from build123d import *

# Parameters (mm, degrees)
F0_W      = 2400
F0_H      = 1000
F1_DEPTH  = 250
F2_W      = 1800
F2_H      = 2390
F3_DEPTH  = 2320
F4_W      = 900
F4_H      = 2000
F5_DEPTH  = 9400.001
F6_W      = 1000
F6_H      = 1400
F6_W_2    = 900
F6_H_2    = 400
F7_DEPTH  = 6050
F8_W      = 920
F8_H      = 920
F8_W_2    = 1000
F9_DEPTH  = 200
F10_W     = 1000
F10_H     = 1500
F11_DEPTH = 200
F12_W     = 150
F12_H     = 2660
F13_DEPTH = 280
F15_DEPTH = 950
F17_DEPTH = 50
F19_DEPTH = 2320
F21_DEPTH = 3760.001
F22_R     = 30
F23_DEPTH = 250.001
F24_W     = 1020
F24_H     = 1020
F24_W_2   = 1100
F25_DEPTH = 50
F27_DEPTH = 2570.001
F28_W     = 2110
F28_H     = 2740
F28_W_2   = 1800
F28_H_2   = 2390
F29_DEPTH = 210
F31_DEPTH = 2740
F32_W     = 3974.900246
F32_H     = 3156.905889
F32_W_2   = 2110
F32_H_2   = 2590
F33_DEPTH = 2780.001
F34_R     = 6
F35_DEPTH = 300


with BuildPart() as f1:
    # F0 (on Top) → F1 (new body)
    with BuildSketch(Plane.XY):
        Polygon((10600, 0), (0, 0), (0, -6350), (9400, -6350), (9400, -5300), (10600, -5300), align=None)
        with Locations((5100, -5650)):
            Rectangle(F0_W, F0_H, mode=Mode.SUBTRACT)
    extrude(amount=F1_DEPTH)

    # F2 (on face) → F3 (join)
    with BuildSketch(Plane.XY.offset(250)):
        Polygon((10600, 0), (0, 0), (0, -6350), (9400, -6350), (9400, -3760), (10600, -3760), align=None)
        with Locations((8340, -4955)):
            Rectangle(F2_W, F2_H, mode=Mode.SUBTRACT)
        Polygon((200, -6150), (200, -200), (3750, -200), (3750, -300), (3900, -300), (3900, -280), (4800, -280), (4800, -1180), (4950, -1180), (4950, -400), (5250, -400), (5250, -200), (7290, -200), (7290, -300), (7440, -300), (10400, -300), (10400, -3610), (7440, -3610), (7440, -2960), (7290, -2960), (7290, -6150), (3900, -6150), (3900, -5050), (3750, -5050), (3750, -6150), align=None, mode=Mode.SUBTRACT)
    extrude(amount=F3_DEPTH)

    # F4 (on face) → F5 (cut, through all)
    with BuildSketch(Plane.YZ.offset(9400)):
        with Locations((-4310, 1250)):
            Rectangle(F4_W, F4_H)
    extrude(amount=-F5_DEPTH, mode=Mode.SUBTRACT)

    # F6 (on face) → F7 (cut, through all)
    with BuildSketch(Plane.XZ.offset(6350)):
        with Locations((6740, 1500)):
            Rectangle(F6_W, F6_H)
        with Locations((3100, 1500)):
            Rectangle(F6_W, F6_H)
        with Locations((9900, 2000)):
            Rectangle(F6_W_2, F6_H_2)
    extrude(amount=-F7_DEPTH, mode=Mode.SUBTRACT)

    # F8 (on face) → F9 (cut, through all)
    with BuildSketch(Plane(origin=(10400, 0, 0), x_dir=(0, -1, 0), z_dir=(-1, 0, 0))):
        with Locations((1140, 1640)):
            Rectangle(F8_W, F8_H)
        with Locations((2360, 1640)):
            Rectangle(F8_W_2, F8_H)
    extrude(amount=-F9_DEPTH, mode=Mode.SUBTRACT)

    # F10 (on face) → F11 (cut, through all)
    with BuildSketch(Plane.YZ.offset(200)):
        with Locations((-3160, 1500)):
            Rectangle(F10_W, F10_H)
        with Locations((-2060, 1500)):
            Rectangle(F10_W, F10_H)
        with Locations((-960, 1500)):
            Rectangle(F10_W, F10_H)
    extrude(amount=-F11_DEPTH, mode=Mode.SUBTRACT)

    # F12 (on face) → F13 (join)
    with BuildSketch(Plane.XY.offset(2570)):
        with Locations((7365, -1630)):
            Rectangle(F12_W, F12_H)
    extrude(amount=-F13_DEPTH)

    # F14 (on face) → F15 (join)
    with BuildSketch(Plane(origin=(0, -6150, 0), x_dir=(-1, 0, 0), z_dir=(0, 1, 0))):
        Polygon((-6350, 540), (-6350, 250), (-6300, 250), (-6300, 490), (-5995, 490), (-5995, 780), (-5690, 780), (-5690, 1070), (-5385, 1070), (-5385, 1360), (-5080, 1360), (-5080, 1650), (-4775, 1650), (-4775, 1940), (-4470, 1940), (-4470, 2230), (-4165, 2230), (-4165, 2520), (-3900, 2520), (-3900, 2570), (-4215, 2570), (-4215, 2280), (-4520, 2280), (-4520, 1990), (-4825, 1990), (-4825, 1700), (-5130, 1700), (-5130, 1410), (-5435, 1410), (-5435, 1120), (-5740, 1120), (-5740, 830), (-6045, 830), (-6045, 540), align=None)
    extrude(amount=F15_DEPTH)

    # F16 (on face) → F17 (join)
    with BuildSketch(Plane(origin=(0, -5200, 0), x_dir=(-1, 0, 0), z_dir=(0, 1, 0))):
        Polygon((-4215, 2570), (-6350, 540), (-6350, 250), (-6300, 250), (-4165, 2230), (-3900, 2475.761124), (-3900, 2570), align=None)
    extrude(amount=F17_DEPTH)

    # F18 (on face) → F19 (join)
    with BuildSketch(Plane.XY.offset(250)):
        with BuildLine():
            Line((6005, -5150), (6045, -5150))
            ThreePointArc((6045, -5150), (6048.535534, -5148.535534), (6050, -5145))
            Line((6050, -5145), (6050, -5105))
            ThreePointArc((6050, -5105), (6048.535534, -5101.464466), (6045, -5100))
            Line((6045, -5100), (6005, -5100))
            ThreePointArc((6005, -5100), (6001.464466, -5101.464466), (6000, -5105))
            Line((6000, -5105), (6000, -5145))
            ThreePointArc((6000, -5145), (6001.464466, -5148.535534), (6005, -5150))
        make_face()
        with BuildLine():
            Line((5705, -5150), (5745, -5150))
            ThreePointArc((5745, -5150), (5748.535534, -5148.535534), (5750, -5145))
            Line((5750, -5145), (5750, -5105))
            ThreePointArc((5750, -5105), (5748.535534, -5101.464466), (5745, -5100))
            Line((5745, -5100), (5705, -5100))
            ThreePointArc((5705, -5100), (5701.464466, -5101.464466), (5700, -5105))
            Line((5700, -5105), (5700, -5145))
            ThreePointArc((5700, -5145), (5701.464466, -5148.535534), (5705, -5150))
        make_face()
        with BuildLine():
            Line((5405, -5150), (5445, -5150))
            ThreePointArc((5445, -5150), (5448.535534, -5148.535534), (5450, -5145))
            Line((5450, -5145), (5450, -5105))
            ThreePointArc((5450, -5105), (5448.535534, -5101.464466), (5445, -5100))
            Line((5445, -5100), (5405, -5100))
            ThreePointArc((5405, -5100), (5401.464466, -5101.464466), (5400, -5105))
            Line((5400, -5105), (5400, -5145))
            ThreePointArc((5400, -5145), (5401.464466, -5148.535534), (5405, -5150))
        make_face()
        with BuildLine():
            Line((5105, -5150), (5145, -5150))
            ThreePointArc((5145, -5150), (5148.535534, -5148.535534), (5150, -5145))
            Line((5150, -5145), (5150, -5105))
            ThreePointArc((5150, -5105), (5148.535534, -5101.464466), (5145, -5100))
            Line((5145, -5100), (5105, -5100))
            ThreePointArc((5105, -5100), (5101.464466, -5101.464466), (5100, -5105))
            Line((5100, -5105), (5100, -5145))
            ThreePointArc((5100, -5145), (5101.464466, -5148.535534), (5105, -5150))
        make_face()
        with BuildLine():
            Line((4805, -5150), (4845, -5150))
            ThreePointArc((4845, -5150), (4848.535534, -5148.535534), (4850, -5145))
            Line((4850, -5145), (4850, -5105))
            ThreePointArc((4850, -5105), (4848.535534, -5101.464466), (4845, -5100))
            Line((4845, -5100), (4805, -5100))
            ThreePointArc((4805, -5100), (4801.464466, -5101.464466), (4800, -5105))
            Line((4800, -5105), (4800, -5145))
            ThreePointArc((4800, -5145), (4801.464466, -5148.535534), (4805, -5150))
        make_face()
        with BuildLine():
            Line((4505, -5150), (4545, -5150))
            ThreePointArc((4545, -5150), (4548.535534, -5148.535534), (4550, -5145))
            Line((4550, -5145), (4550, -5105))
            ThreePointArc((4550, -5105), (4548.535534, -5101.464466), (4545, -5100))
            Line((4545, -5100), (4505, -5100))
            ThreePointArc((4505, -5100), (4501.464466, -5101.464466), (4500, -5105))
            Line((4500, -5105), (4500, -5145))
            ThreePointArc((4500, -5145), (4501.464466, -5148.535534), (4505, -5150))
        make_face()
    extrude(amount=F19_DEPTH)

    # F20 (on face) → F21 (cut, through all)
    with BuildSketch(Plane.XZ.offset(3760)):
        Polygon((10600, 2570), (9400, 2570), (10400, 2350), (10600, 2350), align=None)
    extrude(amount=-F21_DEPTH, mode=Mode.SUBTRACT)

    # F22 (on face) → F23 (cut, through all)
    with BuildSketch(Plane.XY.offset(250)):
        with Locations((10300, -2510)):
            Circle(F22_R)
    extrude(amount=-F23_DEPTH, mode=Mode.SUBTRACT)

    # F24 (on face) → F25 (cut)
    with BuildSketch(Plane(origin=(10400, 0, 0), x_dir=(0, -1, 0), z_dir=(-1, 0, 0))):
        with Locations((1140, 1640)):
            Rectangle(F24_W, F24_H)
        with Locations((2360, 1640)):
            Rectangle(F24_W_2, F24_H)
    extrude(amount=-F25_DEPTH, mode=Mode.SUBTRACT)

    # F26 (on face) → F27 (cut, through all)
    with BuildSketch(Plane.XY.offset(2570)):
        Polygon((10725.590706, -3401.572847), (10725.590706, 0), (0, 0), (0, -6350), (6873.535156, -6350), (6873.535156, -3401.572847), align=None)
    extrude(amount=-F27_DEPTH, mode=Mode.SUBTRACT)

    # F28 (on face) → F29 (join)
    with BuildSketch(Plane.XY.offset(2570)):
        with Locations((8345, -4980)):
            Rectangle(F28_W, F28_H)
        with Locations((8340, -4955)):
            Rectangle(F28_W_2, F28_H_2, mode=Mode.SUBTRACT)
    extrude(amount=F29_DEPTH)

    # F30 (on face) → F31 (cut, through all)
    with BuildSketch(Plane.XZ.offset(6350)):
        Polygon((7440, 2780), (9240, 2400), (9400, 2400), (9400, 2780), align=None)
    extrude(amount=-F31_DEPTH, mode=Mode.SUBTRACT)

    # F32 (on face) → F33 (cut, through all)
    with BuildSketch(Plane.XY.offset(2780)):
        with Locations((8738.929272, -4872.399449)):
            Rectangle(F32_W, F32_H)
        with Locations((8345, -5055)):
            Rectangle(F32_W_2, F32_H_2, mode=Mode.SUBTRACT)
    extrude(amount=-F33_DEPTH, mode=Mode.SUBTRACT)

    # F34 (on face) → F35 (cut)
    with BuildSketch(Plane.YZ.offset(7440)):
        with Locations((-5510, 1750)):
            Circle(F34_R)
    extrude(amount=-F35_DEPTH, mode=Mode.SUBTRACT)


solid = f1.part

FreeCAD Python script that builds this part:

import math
import FreeCAD as App
import Part
import Sketcher


def add_polygon(sketch, points):
    """Adds a closed chain of lines whose ends are joined by coincident constraints."""
    first, n = sketch.GeometryCount, len(points)
    for a, b in zip(points, points[1:] + points[:1]):
        sketch.addGeometry(Part.LineSegment(App.Vector(*a, 0), App.Vector(*b, 0)), False)
    for i in range(n):
        sketch.addConstraint(Sketcher.Constraint("Coincident", first + i, 2, first + (i + 1) % n, 1))

doc = App.newDocument("Part")
body = doc.addObject("PartDesign::Body", "Body")

sketch1 = body.newObject("Sketcher::SketchObject", "Sketch")
sketch1.AttachmentSupport = (doc.getObject("XY_Plane"), [""])
sketch1.MapMode = "FlatFace"
add_polygon(sketch1, [(10600, 0), (0, 0), (0, -6350), (9400, -6350), (9400, -5300), (10600, -5300)])
add_polygon(sketch1, [(6300, -6150), (3900, -6150), (3900, -5150), (6300, -5150)])
sketch1.addConstraint([
    Sketcher.Constraint("Horizontal", 0),
    Sketcher.Constraint("Vertical", 1),
    Sketcher.Constraint("Horizontal", 2),
    Sketcher.Constraint("Vertical", 3),
    Sketcher.Constraint("Horizontal", 4),
    Sketcher.Constraint("Vertical", 5),
    Sketcher.Constraint("Horizontal", 6),
    Sketcher.Constraint("Vertical", 7),
    Sketcher.Constraint("Horizontal", 8),
    Sketcher.Constraint("Vertical", 9),
    Sketcher.Constraint("Coincident", 0, 2, -1, 1),
    Sketcher.Constraint("DistanceX", 0, 2, 0, 1, 10600.0),
    Sketcher.Constraint("DistanceX", 2, 1, 2, 2, 9400.0),
    Sketcher.Constraint("DistanceX", 6, 2, 6, 1, 2400.0),
    Sketcher.Constraint("DistanceY", 1, 2, 1, 1, 6350.0),
    Sketcher.Constraint("DistanceY", 3, 1, 3, 2, 1050.0),
    Sketcher.Constraint("DistanceY", 7, 1, 7, 2, 1000.0),
    Sketcher.Constraint("DistanceX", -1, 1, 6, 2, 3900.0),
    Sketcher.Constraint("DistanceY", 6, 2, -1, 1, 6150.0),
])
pad1 = body.newObject("PartDesign::Pad", "Pad")
pad1.Profile = sketch1
pad1.Length = 250

sketch2 = body.newObject("Sketcher::SketchObject", "Sketch001")
sketch2.AttachmentSupport = (doc.getObject("XY_Plane"), [""])
sketch2.MapMode = "FlatFace"
sketch2.AttachmentOffset = App.Placement(App.Vector(0, 0, 250), App.Rotation())
add_polygon(sketch2, [(10600, 0), (0, 0), (0, -6350), (9400, -6350), (9400, -3760), (10600, -3760)])
add_polygon(sketch2, [(9240, -6150), (7440, -6150), (7440, -3760), (9240, -3760)])
add_polygon(sketch2, [(3750, -6150), (200, -6150), (200, -200), (3750, -200), (3750, -300), (3900, -300), (3900, -280), (4800, -280), (4800, -1180), (4950, -1180), (4950, -400), (5250, -400), (5250, -200), (7290, -200), (7290, -300), (10400, -300), (10400, -3610), (7440, -3610), (7440, -2960), (7290, -2960), (7290, -6150), (3900, -6150), (3900, -5050), (3750, -5050)])
sketch2.addConstraint([
    Sketcher.Constraint("Horizontal", 0),
    Sketcher.Constraint("Vertical", 1),
    Sketcher.Constraint("Horizontal", 2),
    Sketcher.Constraint("Vertical", 3),
    Sketcher.Constraint("Horizontal", 4),
    Sketcher.Constraint("Vertical", 5),
    Sketcher.Constraint("Horizontal", 6),
    Sketcher.Constraint("Vertical", 7),
    Sketcher.Constraint("Horizontal", 8),
    Sketcher.Constraint("Vertical", 9),
    Sketcher.Constraint("Horizontal", 10),
    Sketcher.Constraint("Vertical", 11),
    Sketcher.Constraint("Horizontal", 12),
    Sketcher.Constraint("Vertical", 13),
    Sketcher.Constraint("Horizontal", 14),
    Sketcher.Constraint("Vertical", 15),
    Sketcher.Constraint("Horizontal", 16),
    Sketcher.Constraint("Vertical", 17),
    Sketcher.Constraint("Horizontal", 18),
    Sketcher.Constraint("Vertical", 19),
    Sketcher.Constraint("Horizontal", 20),
    Sketcher.Constraint("Vertical", 21),
    Sketcher.Constraint("Horizontal", 22),
    Sketcher.Constraint("Vertical", 23),
    Sketcher.Constraint("Horizontal", 24),
    Sketcher.Constraint("Vertical", 25),
    Sketcher.Constraint("Horizontal", 26),
    Sketcher.Constraint("Vertical", 27),
    Sketcher.Constraint("Horizontal", 28),
    Sketcher.Constraint("Vertical", 29),
    Sketcher.Constraint("Horizontal", 30),
    Sketcher.Constraint("Vertical", 31),
    Sketcher.Constraint("Horizontal", 32),
    Sketcher.Constraint("Vertical", 33),
    Sketcher.Constraint("Coincident", 0, 2, -1, 1),
    Sketcher.Constraint("Horizontal", 4, 2, 7, 2),
    Sketcher.Constraint("Horizontal", 9, 2, 10, 2),
    Sketcher.Constraint("Horizontal", 12, 2, 21, 2),
    Sketcher.Constraint("Horizontal", 14, 2, 23, 2),
    Sketcher.Constraint("Horizontal", 10, 2, 29, 2),
    Sketcher.Constraint("Vertical", 7, 2, 26, 2),
    Sketcher.Constraint("Vertical", 23, 2, 28, 2),
    Sketcher.Constraint("Vertical", 15, 2, 30, 2),
    Sketcher.Constraint("Vertical", 13, 2, 32, 2),
    Sketcher.Constraint("Equal", 14, 18),
    Sketcher.Constraint("Equal", 18, 28),
    Sketcher.Constraint("Equal", 16, 17),
    Sketcher.Constraint("DistanceX", 0, 2, 0, 1, 10600.0),
    Sketcher.Constraint("DistanceX", 2, 1, 2, 2, 9400.0),
    Sketcher.Constraint("DistanceX", 6, 2, 6, 1, 1800.0),
    Sketcher.Constraint("DistanceX", 10, 2, 10, 1, 3550.0),
    Sketcher.Constraint("DistanceX", 14, 1, 14, 2, 150.0),
    Sketcher.Constraint("DistanceX", 16, 1, 16, 2, 900.0),
    Sketcher.Constraint("DistanceX", 20, 1, 20, 2, 300.0),
    Sketcher.Constraint("DistanceX", 22, 1, 22, 2, 2040.0),
    Sketcher.Constraint("DistanceX", 24, 1, 24, 2, 3110.0),
    Sketcher.Constraint("DistanceY", 1, 2, 1, 1, 6350.0),
    Sketcher.Constraint("DistanceY", 3, 1, 3, 2, 2590.0),
    Sketcher.Constraint("DistanceY", 7, 1, 7, 2, 2390.0),
    Sketcher.Constraint("DistanceY", 11, 1, 11, 2, 5950.0),
    Sketcher.Constraint("DistanceY", 13, 2, 13, 1, 100.0),
    Sketcher.Constraint("DistanceY", 15, 1, 15, 2, 20.0),
    Sketcher.Constraint("DistanceY", 19, 1, 19, 2, 780.0),
    Sketcher.Constraint("DistanceY", 25, 2, 25, 1, 3310.0),
    Sketcher.Constraint("DistanceY", 27, 1, 27, 2, 650.0),
    Sketcher.Constraint("DistanceY", 31, 1, 31, 2, 1100.0),
    Sketcher.Constraint("DistanceX", -1, 1, 6, 2, 7440.0),
])
pad2 = body.newObject("PartDesign::Pad", "Pad001")
pad2.Profile = sketch2
pad2.Length = 2320

sketch3 = body.newObject("Sketcher::SketchObject", "Sketch002")
sketch3.AttachmentSupport = (doc.getObject("YZ_Plane"), [""])
sketch3.MapMode = "FlatFace"
sketch3.AttachmentOffset = App.Placement(App.Vector(0, 0, 9400), App.Rotation())
add_polygon(sketch3, [(-4760, 2250), (-4760, 250), (-3860, 250), (-3860, 2250)])
sketch3.addConstraint([
    Sketcher.Constraint("Vertical", 0),
    Sketcher.Constraint("Horizontal", 1),
    Sketcher.Constraint("Vertical", 2),
    Sketcher.Constraint("Horizontal", 3),
    Sketcher.Constraint("DistanceX", 1, 1, 1, 2, 900.0),
    Sketcher.Constraint("DistanceY", 0, 2, 0, 1, 2000.0),
    Sketcher.Constraint("DistanceX", 0, 2, -1, 1, 4760.0),
    Sketcher.Constraint("DistanceY", -1, 1, 0, 2, 250.0),
])
pocket1 = body.newObject("PartDesign::Pocket", "Pocket")
pocket1.Profile = sketch3
pocket1.Type = "ThroughAll"

sketch4 = body.newObject("Sketcher::SketchObject", "Sketch003")
sketch4.AttachmentSupport = (doc.getObject("XZ_Plane"), [""])
sketch4.MapMode = "FlatFace"
sketch4.AttachmentOffset = App.Placement(App.Vector(0, 0, 6350), App.Rotation())
add_polygon(sketch4, [(6240, 2200), (6240, 800), (7240, 800), (7240, 2200)])
add_polygon(sketch4, [(2600, 2200), (2600, 800), (3600, 800), (3600, 2200)])
add_polygon(sketch4, [(9450, 2200), (9450, 1800), (10350, 1800), (10350, 2200)])
sketch4.addConstraint([
    Sketcher.Constraint("Vertical", 0),
    Sketcher.Constraint("Horizontal", 1),
    Sketcher.Constraint("Vertical", 2),
    Sketcher.Constraint("Horizontal", 3),
    Sketcher.Constraint("Vertical", 4),
    Sketcher.Constraint("Horizontal", 5),
    Sketcher.Constraint("Vertical", 6),
    Sketcher.Constraint("Horizontal", 7),
    Sketcher.Constraint("Vertical", 8),
    Sketcher.Constraint("Horizontal", 9),
    Sketcher.Constraint("Vertical", 10),
    Sketcher.Constraint("Horizontal", 11),
    Sketcher.Constraint("Horizontal", 1, 2, 4, 2),
    Sketcher.Constraint("Horizontal", 3, 2, 6, 2),
    Sketcher.Constraint("Horizontal", 7, 2, 10, 2),
    Sketcher.Constraint("Equal", 3, 5),
    Sketcher.Constraint("DistanceX", 1, 1, 1, 2, 1000.0),
    Sketcher.Constraint("DistanceX", 9, 1, 9, 2, 900.0),
    Sketcher.Constraint("DistanceY", 0, 2, 0, 1, 1400.0),
    Sketcher.Constraint("DistanceY", 8, 2, 8, 1, 400.0),
    Sketcher.Constraint("DistanceX", -1, 1, 0, 2, 6240.0),
    Sketcher.Constraint("DistanceY", -1, 1, 0, 2, 800.0),
    Sketcher.Constraint("DistanceX", -1, 1, 4, 2, 2600.0),
    Sketcher.Constraint("DistanceX", -1, 1, 8, 2, 9450.0),
])
pocket2 = body.newObject("PartDesign::Pocket", "Pocket001")
pocket2.Profile = sketch4
pocket2.Length = 6050

sketch5 = body.newObject("Sketcher::SketchObject", "Sketch004")
sketch5.AttachmentSupport = (doc.getObject("YZ_Plane"), [""])
sketch5.MapMode = "FlatFace"
sketch5.AttachmentOffset = App.Placement(App.Vector(0, 0, 10400), App.Rotation())
add_polygon(sketch5, [(-680, 2100), (-680, 1180), (-1600, 1180), (-1600, 2100)])
add_polygon(sketch5, [(-1860, 2100), (-1860, 1180), (-2860, 1180), (-2860, 2100)])
sketch5.addConstraint([
    Sketcher.Constraint("Vertical", 0),
    Sketcher.Constraint("Horizontal", 1),
    Sketcher.Constraint("Vertical", 2),
    Sketcher.Constraint("Horizontal", 3),
    Sketcher.Constraint("Vertical", 4),
    Sketcher.Constraint("Horizontal", 5),
    Sketcher.Constraint("Vertical", 6),
    Sketcher.Constraint("Horizontal", 7),
    Sketcher.Constraint("Horizontal", 1, 2, 4, 2),
    Sketcher.Constraint("Horizontal", 3, 2, 6, 2),
    Sketcher.Constraint("Equal", 3, 0),
    Sketcher.Constraint("DistanceX", 1, 2, 1, 1, 920.0),
    Sketcher.Constraint("DistanceX", 5, 2, 5, 1, 1000.0),
    Sketcher.Constraint("DistanceX", 0, 2, -1, 1, 680.0),
    Sketcher.Constraint("DistanceY", -1, 1, 0, 2, 1180.0),
    Sketcher.Constraint("DistanceX", 4, 2, -1, 1, 1860.0),
])
pocket3 = body.newObject("PartDesign::Pocket", "Pocket002")
pocket3.Profile = sketch5
pocket3.Type = "ThroughAll"
pocket3.Reversed = True

sketch6 = body.newObject("Sketcher::SketchObject", "Sketch005")
sketch6.AttachmentSupport = (doc.getObject("YZ_Plane"), [""])
sketch6.MapMode = "FlatFace"
sketch6.AttachmentOffset = App.Placement(App.Vector(0, 0, 200), App.Rotation())
add_polygon(sketch6, [(-3660, 2250), (-3660, 750), (-2660, 750), (-2660, 2250)])
add_polygon(sketch6, [(-2560, 2250), (-2560, 750), (-1560, 750), (-1560, 2250)])
add_polygon(sketch6, [(-1460, 2250), (-1460, 750), (-460, 750), (-460, 2250)])
sketch6.addConstraint([
    Sketcher.Constraint("Vertical", 0),
    Sketcher.Constraint("Horizontal", 1),
    Sketcher.Constraint("Vertical", 2),
    Sketcher.Constraint("Horizontal", 3),
    Sketcher.Constraint("Vertical", 4),
    Sketcher.Constraint("Horizontal", 5),
    Sketcher.Constraint("Vertical", 6),
    Sketcher.Constraint("Horizontal", 7),
    Sketcher.Constraint("Vertical", 8),
    Sketcher.Constraint("Horizontal", 9),
    Sketcher.Constraint("Vertical", 10),
    Sketcher.Constraint("Horizontal", 11),
    Sketcher.Constraint("Horizontal", 1, 2, 4, 2),
    Sketcher.Constraint("Horizontal", 3, 2, 6, 2),
    Sketcher.Constraint("Horizontal", 5, 2, 8, 2),
    Sketcher.Constraint("Horizontal", 7, 2, 10, 2),
    Sketcher.Constraint("Equal", 3, 5),
    Sketcher.Constraint("Equal", 7, 9),
    Sketcher.Constraint("DistanceX", 1, 1, 1, 2, 1000.0),
    Sketcher.Constraint("DistanceY", 0, 2, 0, 1, 1500.0),
    Sketcher.Constraint("DistanceX", 0, 2, -1, 1, 3660.0),
    Sketcher.Constraint("DistanceY", -1, 1, 0, 2, 750.0),
    Sketcher.Constraint("DistanceX", 4, 2, -1, 1, 2560.0),
    Sketcher.Constraint("DistanceX", 8, 2, -1, 1, 1460.0),
])
pocket4 = body.newObject("PartDesign::Pocket", "Pocket003")
pocket4.Profile = sketch6
pocket4.Type = "ThroughAll"

sketch7 = body.newObject("Sketcher::SketchObject", "Sketch006")
sketch7.AttachmentSupport = (doc.getObject("XY_Plane"), [""])
sketch7.MapMode = "FlatFace"
sketch7.AttachmentOffset = App.Placement(App.Vector(0, 0, 2570), App.Rotation())
add_polygon(sketch7, [(7290, -300), (7290, -2960), (7440, -2960), (7440, -300)])
sketch7.addConstraint([
    Sketcher.Constraint("Vertical", 0),
    Sketcher.Constraint("Horizontal", 1),
    Sketcher.Constraint("Vertical", 2),
    Sketcher.Constraint("Horizontal", 3),
    Sketcher.Constraint("DistanceX", 1, 1, 1, 2, 150.0),
    Sketcher.Constraint("DistanceY", 0, 2, 0, 1, 2660.0),
    Sketcher.Constraint("DistanceX", -1, 1, 0, 2, 7290.0),
    Sketcher.Constraint("DistanceY", 0, 2, -1, 1, 2960.0),
])
pad3 = body.newObject("PartDesign::Pad", "Pad002")
pad3.Profile = sketch7
pad3.Length = 280
pad3.Reversed = True

sketch8 = body.newObject("Sketcher::SketchObject", "Sketch007")
sketch8.AttachmentSupport = (doc.getObject("XZ_Plane"), [""])
sketch8.MapMode = "FlatFace"
sketch8.AttachmentOffset = App.Placement(App.Vector(0, 0, 6150), App.Rotation())
add_polygon(sketch8, [(6350, 540), (6350, 250), (6300, 250), (6300, 490), (5995, 490), (5995, 780), (5690, 780), (5690, 1070), (5385, 1070), (5385, 1360), (5080, 1360), (5080, 1650), (4775, 1650), (4775, 1940), (4470, 1940), (4470, 2230), (4165, 2230), (4165, 2520), (3900, 2520), (3900, 2570), (4215, 2570), (4215, 2280), (4520, 2280), (4520, 1990), (4825, 1990), (4825, 1700), (5130, 1700), (5130, 1410), (5435, 1410), (5435, 1120), (5740, 1120), (5740, 830), (6045, 830), (6045, 540)])
sketch8.addConstraint([
    Sketcher.Constraint("Vertical", 0),
    Sketcher.Constraint("Horizontal", 1),
    Sketcher.Constraint("Vertical", 2),
    Sketcher.Constraint("Horizontal", 3),
    Sketcher.Constraint("Vertical", 4),
    Sketcher.Constraint("Horizontal", 5),
    Sketcher.Constraint("Vertical", 6),
    Sketcher.Constraint("Horizontal", 7),
    Sketcher.Constraint("Vertical", 8),
    Sketcher.Constraint("Horizontal", 9),
    Sketcher.Constraint("Vertical", 10),
    Sketcher.Constraint("Horizontal", 11),
    Sketcher.Constraint("Vertical", 12),
    Sketcher.Constraint("Horizontal", 13),
    Sketcher.Constraint("Vertical", 14),
    Sketcher.Constraint("Horizontal", 15),
    Sketcher.Constraint("Vertical", 16),
    Sketcher.Constraint("Horizontal", 17),
    Sketcher.Constraint("Vertical", 18),
    Sketcher.Constraint("Horizontal", 19),
    Sketcher.Constraint("Vertical", 20),
    Sketcher.Constraint("Horizontal", 21),
    Sketcher.Constraint("Vertical", 22),
    Sketcher.Constraint("Horizontal", 23),
    Sketcher.Constraint("Vertical", 24),
    Sketcher.Constraint("Horizontal", 25),
    Sketcher.Constraint("Vertical", 26),
    Sketcher.Constraint("Horizontal", 27),
    Sketcher.Constraint("Vertical", 28),
    Sketcher.Constraint("Horizontal", 29),
    Sketcher.Constraint("Vertical", 30),
    Sketcher.Constraint("Horizontal", 31),
    Sketcher.Constraint("Vertical", 32),
    Sketcher.Constraint("Horizontal", 33),
    Sketcher.Constraint("Equal", 3, 5),
    Sketcher.Constraint("Equal", 5, 7),
    Sketcher.Constraint("Equal", 7, 9),
    Sketcher.Constraint("Equal", 9, 11),
    Sketcher.Constraint("Equal", 11, 13),
    Sketcher.Constraint("Equal", 13, 15),
    Sketcher.Constraint("Equal", 15, 21),
    Sketcher.Constraint("Equal", 21, 23),
    Sketcher.Constraint("Equal", 23, 25),
    Sketcher.Constraint("Equal", 25, 27),
    Sketcher.Constraint("Equal", 27, 29),
    Sketcher.Constraint("Equal", 29, 31),
    Sketcher.Constraint("Equal", 31, 33),
    Sketcher.Constraint("Equal", 0, 4),
    Sketcher.Constraint("Equal", 4, 6),
    Sketcher.Constraint("Equal", 6, 8),
    Sketcher.Constraint("Equal", 8, 10),
    Sketcher.Constraint("Equal", 10, 12),
    Sketcher.Constraint("Equal", 12, 14),
    Sketcher.Constraint("Equal", 14, 16),
    Sketcher.Constraint("Equal", 1, 18),
    Sketcher.Constraint("Equal", 16, 20),
    Sketcher.Constraint("Equal", 20, 22),
    Sketcher.Constraint("Equal", 22, 24),
    Sketcher.Constraint("Equal", 24, 26),
    Sketcher.Constraint("Equal", 26, 28),
    Sketcher.Constraint("Equal", 28, 30),
    Sketcher.Constraint("Equal", 30, 32),
    Sketcher.Constraint("DistanceX", 1, 2, 1, 1, 50.0),
    Sketcher.Constraint("DistanceX", 3, 2, 3, 1, 305.0),
    Sketcher.Constraint("DistanceX", 17, 2, 17, 1, 265.0),
    Sketcher.Constraint("DistanceY", 0, 2, 0, 1, 290.0),
    Sketcher.Constraint("DistanceX", -1, 1, 0, 2, 6350.0),
    Sketcher.Constraint("DistanceY", -1, 1, 0, 2, 250.0),
])
pad4 = body.newObject("PartDesign::Pad", "Pad003")
pad4.Profile = sketch8
pad4.Length = 950
pad4.Reversed = True

sketch9 = body.newObject("Sketcher::SketchObject", "Sketch008")
sketch9.AttachmentSupport = (doc.getObject("XZ_Plane"), [""])
sketch9.MapMode = "FlatFace"
sketch9.AttachmentOffset = App.Placement(App.Vector(0, 0, 5200), App.Rotation())
add_polygon(sketch9, [(4215, 2570), (6350, 540), (6350, 250), (6300, 250), (4165, 2230), (3900, 2475.761124), (3900, 2570)])
sketch9.addConstraint([
    Sketcher.Constraint("Vertical", 1),
    Sketcher.Constraint("Horizontal", 2),
    Sketcher.Constraint("Vertical", 5),
    Sketcher.Constraint("Horizontal", 6),
    Sketcher.Constraint("Parallel", 3, 4),
    Sketcher.Constraint("DistanceX", 2, 2, 2, 1, 50.0),
    Sketcher.Constraint("DistanceX", 6, 1, 6, 2, 315.0),
    Sketcher.Constraint("DistanceY", 1, 2, 1, 1, 290.0),
    Sketcher.Constraint("DistanceX", -1, 1, 0, 2, 6350.0),
    Sketcher.Constraint("DistanceY", -1, 1, 0, 2, 540.0),
    Sketcher.Constraint("DistanceX", -1, 1, 3, 2, 4165.0),
    Sketcher.Constraint("DistanceY", -1, 1, 3, 2, 2230.0),
    Sketcher.Constraint("DistanceX", -1, 1, 4, 2, 3900.0),
    Sketcher.Constraint("DistanceY", -1, 1, 5, 2, 2570.0),
])
pad5 = body.newObject("PartDesign::Pad", "Pad004")
pad5.Profile = sketch9
pad5.Length = 50
pad5.Reversed = True

sketch10 = body.newObject("Sketcher::SketchObject", "Sketch009")
sketch10.AttachmentSupport = (doc.getObject("XY_Plane"), [""])
sketch10.MapMode = "FlatFace"
sketch10.AttachmentOffset = App.Placement(App.Vector(0, 0, 250), App.Rotation())
sketch10.addGeometry([
    Part.LineSegment(App.Vector(6005, -5150, 0), App.Vector(6045, -5150, 0)),
    Part.ArcOfCircle(Part.Circle(App.Vector(6045, -5145, 0), App.Vector(0, 0, 1), 5), math.radians(-90.000004), math.radians(0.000004)),
    Part.LineSegment(App.Vector(6050, -5145, 0), App.Vector(6050, -5105, 0)),
    Part.ArcOfCircle(Part.Circle(App.Vector(6045, -5105, 0), App.Vector(0, 0, 1), 5), math.radians(-0.000004), math.radians(90.000004)),
    Part.LineSegment(App.Vector(6045, -5100, 0), App.Vector(6005, -5100, 0)),
    Part.ArcOfCircle(Part.Circle(App.Vector(6005, -5105, 0), App.Vector(0, 0, 1), 5), math.radians(89.999996), math.radians(180.000004)),
    Part.LineSegment(App.Vector(6000, -5105, 0), App.Vector(6000, -5145, 0)),
    Part.ArcOfCircle(Part.Circle(App.Vector(6005, -5145, 0), App.Vector(0, 0, 1), 5), math.radians(179.999996), math.radians(270.000004)),
    Part.LineSegment(App.Vector(5705, -5150, 0), App.Vector(5745, -5150, 0)),
    Part.ArcOfCircle(Part.Circle(App.Vector(5745, -5145, 0), App.Vector(0, 0, 1), 5), math.radians(-90.000004), math.radians(0.000004)),
    Part.LineSegment(App.Vector(5750, -5145, 0), App.Vector(5750, -5105, 0)),
    Part.ArcOfCircle(Part.Circle(App.Vector(5745, -5105, 0), App.Vector(0, 0, 1), 5), math.radians(-0.000004), math.radians(90.000004)),
    Part.LineSegment(App.Vector(5745, -5100, 0), App.Vector(5705, -5100, 0)),
    Part.ArcOfCircle(Part.Circle(App.Vector(5705, -5105, 0), App.Vector(0, 0, 1), 5), math.radians(89.999996), math.radians(180.000004)),
    Part.LineSegment(App.Vector(5700, -5105, 0), App.Vector(5700, -5145, 0)),
    Part.ArcOfCircle(Part.Circle(App.Vector(5705, -5145, 0), App.Vector(0, 0, 1), 5), math.radians(179.999996), math.radians(270.000004)),
    Part.LineSegment(App.Vector(5405, -5150, 0), App.Vector(5445, -5150, 0)),
    Part.ArcOfCircle(Part.Circle(App.Vector(5445, -5145, 0), App.Vector(0, 0, 1), 5), math.radians(-90.000004), math.radians(0.000004)),
    Part.LineSegment(App.Vector(5450, -5145, 0), App.Vector(5450, -5105, 0)),
    Part.ArcOfCircle(Part.Circle(App.Vector(5445, -5105, 0), App.Vector(0, 0, 1), 5), math.radians(-0.000004), math.radians(90.000004)),
    Part.LineSegment(App.Vector(5445, -5100, 0), App.Vector(5405, -5100, 0)),
    Part.ArcOfCircle(Part.Circle(App.Vector(5405, -5105, 0), App.Vector(0, 0, 1), 5), math.radians(89.999996), math.radians(180.000004)),
    Part.LineSegment(App.Vector(5400, -5105, 0), App.Vector(5400, -5145, 0)),
    Part.ArcOfCircle(Part.Circle(App.Vector(5405, -5145, 0), App.Vector(0, 0, 1), 5), math.radians(179.999996), math.radians(270.000004)),
    Part.LineSegment(App.Vector(5105, -5150, 0), App.Vector(5145, -5150, 0)),
    Part.ArcOfCircle(Part.Circle(App.Vector(5145, -5145, 0), App.Vector(0, 0, 1), 5), math.radians(-90.000004), math.radians(0.000004)),
    Part.LineSegment(App.Vector(5150, -5145, 0), App.Vector(5150, -5105, 0)),
    Part.ArcOfCircle(Part.Circle(App.Vector(5145, -5105, 0), App.Vector(0, 0, 1), 5), math.radians(-0.000004), math.radians(90.000004)),
    Part.LineSegment(App.Vector(5145, -5100, 0), App.Vector(5105, -5100, 0)),
    Part.ArcOfCircle(Part.Circle(App.Vector(5105, -5105, 0), App.Vector(0, 0, 1), 5), math.radians(89.999996), math.radians(180.000004)),
    Part.LineSegment(App.Vector(5100, -5105, 0), App.Vector(5100, -5145, 0)),
    Part.ArcOfCircle(Part.Circle(App.Vector(5105, -5145, 0), App.Vector(0, 0, 1), 5), math.radians(179.999996), math.radians(270.000004)),
    Part.LineSegment(App.Vector(4805, -5150, 0), App.Vector(4845, -5150, 0)),
    Part.ArcOfCircle(Part.Circle(App.Vector(4845, -5145, 0), App.Vector(0, 0, 1), 5), math.radians(-90.000004), math.radians(0.000004)),
    Part.LineSegment(App.Vector(4850, -5145, 0), App.Vector(4850, -5105, 0)),
    Part.ArcOfCircle(Part.Circle(App.Vector(4845, -5105, 0), App.Vector(0, 0, 1), 5), math.radians(-0.000004), math.radians(90.000004)),
    Part.LineSegment(App.Vector(4845, -5100, 0), App.Vector(4805, -5100, 0)),
    Part.ArcOfCircle(Part.Circle(App.Vector(4805, -5105, 0), App.Vector(0, 0, 1), 5), math.radians(89.999996), math.radians(180.000004)),
    Part.LineSegment(App.Vector(4800, -5105, 0), App.Vector(4800, -5145, 0)),
    Part.ArcOfCircle(Part.Circle(App.Vector(4805, -5145, 0), App.Vector(0, 0, 1), 5), math.radians(179.999996), math.radians(270.000004)),
    Part.LineSegment(App.Vector(4505, -5150, 0), App.Vector(4545, -5150, 0)),
    Part.ArcOfCircle(Part.Circle(App.Vector(4545, -5145, 0), App.Vector(0, 0, 1), 5), math.radians(-90.000004), math.radians(0.000004)),
    Part.LineSegment(App.Vector(4550, -5145, 0), App.Vector(4550, -5105, 0)),
    Part.ArcOfCircle(Part.Circle(App.Vector(4545, -5105, 0), App.Vector(0, 0, 1), 5), math.radians(-0.000004), math.radians(90.000004)),
    Part.LineSegment(App.Vector(4545, -5100, 0), App.Vector(4505, -5100, 0)),
    Part.ArcOfCircle(Part.Circle(App.Vector(4505, -5105, 0), App.Vector(0, 0, 1), 5), math.radians(89.999996), math.radians(180.000004)),
    Part.LineSegment(App.Vector(4500, -5105, 0), App.Vector(4500, -5145, 0)),
    Part.ArcOfCircle(Part.Circle(App.Vector(4505, -5145, 0), App.Vector(0, 0, 1), 5), math.radians(179.999996), math.radians(270.000004)),
], False)
sketch10.addConstraint([
    Sketcher.Constraint("Tangent", 0, 2, 1, 1),
    Sketcher.Constraint("Tangent", 1, 2, 2, 1),
    Sketcher.Constraint("Tangent", 2, 2, 3, 1),
    Sketcher.Constraint("Tangent", 3, 2, 4, 1),
    Sketcher.Constraint("Tangent", 4, 2, 5, 1),
    Sketcher.Constraint("Tangent", 5, 2, 6, 1),
    Sketcher.Constraint("Tangent", 6, 2, 7, 1),
    Sketcher.Constraint("Tangent", 7, 2, 0, 1),
    Sketcher.Constraint("Tangent", 8, 2, 9, 1),
    Sketcher.Constraint("Tangent", 9, 2, 10, 1),
    Sketcher.Constraint("Tangent", 10, 2, 11, 1),
    Sketcher.Constraint("Tangent", 11, 2, 12, 1),
    Sketcher.Constraint("Tangent", 12, 2, 13, 1),
    Sketcher.Constraint("Tangent", 13, 2, 14, 1),
    Sketcher.Constraint("Tangent", 14, 2, 15, 1),
    Sketcher.Constraint("Tangent", 15, 2, 8, 1),
    Sketcher.Constraint("Tangent", 16, 2, 17, 1),
    Sketcher.Constraint("Tangent", 17, 2, 18, 1),
    Sketcher.Constraint("Tangent", 18, 2, 19, 1),
    Sketcher.Constraint("Tangent", 19, 2, 20, 1),
    Sketcher.Constraint("Tangent", 20, 2, 21, 1),
    Sketcher.Constraint("Tangent", 21, 2, 22, 1),
    Sketcher.Constraint("Tangent", 22, 2, 23, 1),
    Sketcher.Constraint("Tangent", 23, 2, 16, 1),
    Sketcher.Constraint("Tangent", 24, 2, 25, 1),
    Sketcher.Constraint("Tangent", 25, 2, 26, 1),
    Sketcher.Constraint("Tangent", 26, 2, 27, 1),
    Sketcher.Constraint("Tangent", 27, 2, 28, 1),
    Sketcher.Constraint("Tangent", 28, 2, 29, 1),
    Sketcher.Constraint("Tangent", 29, 2, 30, 1),
    Sketcher.Constraint("Tangent", 30, 2, 31, 1),
    Sketcher.Constraint("Tangent", 31, 2, 24, 1),
    Sketcher.Constraint("Tangent", 32, 2, 33, 1),
    Sketcher.Constraint("Tangent", 33, 2, 34, 1),
    Sketcher.Constraint("Tangent", 34, 2, 35, 1),
    Sketcher.Constraint("Tangent", 35, 2, 36, 1),
    Sketcher.Constraint("Tangent", 36, 2, 37, 1),
    Sketcher.Constraint("Tangent", 37, 2, 38, 1),
    Sketcher.Constraint("Tangent", 38, 2, 39, 1),
    Sketcher.Constraint("Tangent", 39, 2, 32, 1),
    Sketcher.Constraint("Tangent", 40, 2, 41, 1),
    Sketcher.Constraint("Tangent", 41, 2, 42, 1),
    Sketcher.Constraint("Tangent", 42, 2, 43, 1),
    Sketcher.Constraint("Tangent", 43, 2, 44, 1),
    Sketcher.Constraint("Tangent", 44, 2, 45, 1),
    Sketcher.Constraint("Tangent", 45, 2, 46, 1),
    Sketcher.Constraint("Tangent", 46, 2, 47, 1),
    Sketcher.Constraint("Tangent", 47, 2, 40, 1),
    Sketcher.Constraint("Horizontal", 0),
    Sketcher.Constraint("Vertical", 2),
    Sketcher.Constraint("Horizontal", 4),
    Sketcher.Constraint("Vertical", 6),
    Sketcher.Constraint("Horizontal", 8),
    Sketcher.Constraint("Vertical", 10),
    Sketcher.Constraint("Horizontal", 12),
    Sketcher.Constraint("Vertical", 14),
    Sketcher.Constraint("Horizontal", 16),
    Sketcher.Constraint("Vertical", 18),
    Sketcher.Constraint("Horizontal", 20),
    Sketcher.Constraint("Vertical", 22),
    Sketcher.Constraint("Horizontal", 24),
    Sketcher.Constraint("Vertical", 26),
    Sketcher.Constraint("Horizontal", 28),
    Sketcher.Constraint("Vertical", 30),
    Sketcher.Constraint("Horizontal", 32),
    Sketcher.Constraint("Vertical", 34),
    Sketcher.Constraint("Horizontal", 36),
    Sketcher.Constraint("Vertical", 38),
    Sketcher.Constraint("Horizontal", 40),
    Sketcher.Constraint("Vertical", 42),
    Sketcher.Constraint("Horizontal", 44),
    Sketcher.Constraint("Vertical", 46),
    Sketcher.Constraint("Equal", 1, 3),
    Sketcher.Constraint("Equal", 3, 5),
    Sketcher.Constraint("Equal", 5, 7),
    Sketcher.Constraint("Equal", 7, 9),
    Sketcher.Constraint("Equal", 9, 11),
    Sketcher.Constraint("Equal", 11, 13),
    Sketcher.Constraint("Equal", 13, 15),
    Sketcher.Constraint("Equal", 15, 17),
    Sketcher.Constraint("Equal", 17, 19),
    Sketcher.Constraint("Equal", 19, 21),
    Sketcher.Constraint("Equal", 21, 23),
    Sketcher.Constraint("Equal", 23, 25),
    Sketcher.Constraint("Equal", 25, 27),
    Sketcher.Constraint("Equal", 27, 29),
    Sketcher.Constraint("Equal", 29, 31),
    Sketcher.Constraint("Equal", 31, 33),
    Sketcher.Constraint("Equal", 33, 35),
    Sketcher.Constraint("Equal", 35, 37),
    Sketcher.Constraint("Equal", 37, 39),
    Sketcher.Constraint("Equal", 39, 41),
    Sketcher.Constraint("Equal", 41, 43),
    Sketcher.Constraint("Equal", 43, 45),
    Sketcher.Constraint("Equal", 45, 47),
    Sketcher.Constraint("Horizontal", 7, 3, 9, 3),
    Sketcher.Constraint("Horizontal", 5, 3, 11, 3),
    Sketcher.Constraint("Horizontal", 15, 3, 17, 3),
    Sketcher.Constraint("Horizontal", 13, 3, 19, 3),
    Sketcher.Constraint("Horizontal", 23, 3, 25, 3),
    Sketcher.Constraint("Horizontal", 21, 3, 27, 3),
    Sketcher.Constraint("Horizontal", 31, 3, 33, 3),
    Sketcher.Constraint("Horizontal", 29, 3, 35, 3),
    Sketcher.Constraint("Horizontal", 39, 3, 41, 3),
    Sketcher.Constraint("Horizontal", 37, 3, 43, 3),
    Sketcher.Constraint("Equal", 4, 8),
    Sketcher.Constraint("Equal", 12, 16),
    Sketcher.Constraint("Equal", 20, 24),
    Sketcher.Constraint("Equal", 28, 32),
    Sketcher.Constraint("Equal", 36, 40),
    Sketcher.Constraint("Equal", 44, 2),
    Sketcher.Constraint("Radius", 1, 5.0),
    Sketcher.Constraint("DistanceX", 0, 1, 0, 2, 40.0),
    Sketcher.Constraint("DistanceX", -1, 1, 1, 3, 6045.0),
    Sketcher.Constraint("DistanceY", 1, 3, -1, 1, 5145.0),
    Sketcher.Constraint("DistanceX", -1, 1, 9, 3, 5745.0),
    Sketcher.Constraint("DistanceX", -1, 1, 17, 3, 5445.0),
    Sketcher.Constraint("DistanceX", -1, 1, 25, 3, 5145.0),
    Sketcher.Constraint("DistanceX", -1, 1, 33, 3, 4845.0),
    Sketcher.Constraint("DistanceX", -1, 1, 41, 3, 4545.0),
])
pad6 = body.newObject("PartDesign::Pad", "Pad005")
pad6.Profile = sketch10
pad6.Length = 2320

sketch11 = body.newObject("Sketcher::SketchObject", "Sketch010")
sketch11.AttachmentSupport = (doc.getObject("XZ_Plane"), [""])
sketch11.MapMode = "FlatFace"
sketch11.AttachmentOffset = App.Placement(App.Vector(0, 0, 3760), App.Rotation())
add_polygon(sketch11, [(10600, 2570), (9400, 2570), (10400, 2350), (10600, 2350)])
sketch11.addConstraint([
    Sketcher.Constraint("Horizontal", 0),
    Sketcher.Constraint("Horizontal", 2),
    Sketcher.Constraint("Vertical", 3),
    Sketcher.Constraint("DistanceX", 0, 2, 0, 1, 1200.0),
    Sketcher.Constraint("DistanceX", 2, 1, 2, 2, 200.0),
    Sketcher.Constraint("DistanceY", 3, 1, 3, 2, 220.0),
    Sketcher.Constraint("DistanceX", -1, 1, 0, 2, 9400.0),
    Sketcher.Constraint("DistanceY", -1, 1, 0, 2, 2570.0),
])
pocket5 = body.newObject("PartDesign::Pocket", "Pocket004")
pocket5.Profile = sketch11
pocket5.Type = "ThroughAll"

sketch12 = body.newObject("Sketcher::SketchObject", "Sketch011")
sketch12.AttachmentSupport = (doc.getObject("XY_Plane"), [""])
sketch12.MapMode = "FlatFace"
sketch12.AttachmentOffset = App.Placement(App.Vector(0, 0, 250), App.Rotation())
sketch12.addGeometry(Part.Circle(App.Vector(10300, -2510, 0), App.Vector(0, 0, 1), 30), False)
sketch12.addConstraint([
    Sketcher.Constraint("Diameter", 0, 60.0),
    Sketcher.Constraint("DistanceX", -1, 1, 0, 3, 10300.0),
    Sketcher.Constraint("DistanceY", 0, 3, -1, 1, 2510.0),
])
pocket6 = body.newObject("PartDesign::Pocket", "Pocket005")
pocket6.Profile = sketch12
pocket6.Type = "ThroughAll"

sketch13 = body.newObject("Sketcher::SketchObject", "Sketch012")
sketch13.AttachmentSupport = (doc.getObject("YZ_Plane"), [""])
sketch13.MapMode = "FlatFace"
sketch13.AttachmentOffset = App.Placement(App.Vector(0, 0, 10400), App.Rotation())
add_polygon(sketch13, [(-630, 2150), (-630, 1130), (-1650, 1130), (-1650, 2150)])
add_polygon(sketch13, [(-1810, 2150), (-1810, 1130), (-2910, 1130), (-2910, 2150)])
sketch13.addConstraint([
    Sketcher.Constraint("Vertical", 0),
    Sketcher.Constraint("Horizontal", 1),
    Sketcher.Constraint("Vertical", 2),
    Sketcher.Constraint("Horizontal", 3),
    Sketcher.Constraint("Vertical", 4),
    Sketcher.Constraint("Horizontal", 5),
    Sketcher.Constraint("Vertical", 6),
    Sketcher.Constraint("Horizontal", 7),
    Sketcher.Constraint("Horizontal", 1, 2, 4, 2),
    Sketcher.Constraint("Horizontal", 3, 2, 6, 2),
    Sketcher.Constraint("Equal", 3, 0),
    Sketcher.Constraint("DistanceX", 1, 2, 1, 1, 1020.0),
    Sketcher.Constraint("DistanceX", 5, 2, 5, 1, 1100.0),
    Sketcher.Constraint("DistanceX", 0, 2, -1, 1, 630.0),
    Sketcher.Constraint("DistanceY", -1, 1, 0, 2, 1130.0),
    Sketcher.Constraint("DistanceX", 4, 2, -1, 1, 1810.0),
])
pocket7 = body.newObject("PartDesign::Pocket", "Pocket006")
pocket7.Profile = sketch13
pocket7.Length = 50
pocket7.Reversed = True

sketch14 = body.newObject("Sketcher::SketchObject", "Sketch013")
sketch14.AttachmentSupport = (doc.getObject("XY_Plane"), [""])
sketch14.MapMode = "FlatFace"
sketch14.AttachmentOffset = App.Placement(App.Vector(0, 0, 2570), App.Rotation())
add_polygon(sketch14, [(10725.590706, -3401.572847), (10725.590706, 0), (0, 0), (0, -6350), (6873.535156, -6350), (6873.535156, -3401.572847)])
sketch14.addConstraint([
    Sketcher.Constraint("Vertical", 0),
    Sketcher.Constraint("Horizontal", 1),
    Sketcher.Constraint("Vertical", 2),
    Sketcher.Constraint("Horizontal", 3),
    Sketcher.Constraint("Vertical", 4),
    Sketcher.Constraint("Horizontal", 5),
    Sketcher.Constraint("Coincident", 1, 2, -1, 1),
    Sketcher.Constraint("DistanceY", 2, 2, 2, 1, 6350.0),
    Sketcher.Constraint("DistanceX", 5, 1, 5, 2, 3852.05555),
    Sketcher.Constraint("DistanceX", 1, 2, 1, 1, 10725.590706),
    Sketcher.Constraint("DistanceY", 0, 1, 0, 2, 3401.572847),
])
pocket8 = body.newObject("PartDesign::Pocket", "Pocket007")
pocket8.Profile = sketch14
pocket8.Type = "ThroughAll"

sketch15 = body.newObject("Sketcher::SketchObject", "Sketch014")
sketch15.AttachmentSupport = (doc.getObject("XY_Plane"), [""])
sketch15.MapMode = "FlatFace"
sketch15.AttachmentOffset = App.Placement(App.Vector(0, 0, 2570), App.Rotation())
add_polygon(sketch15, [(7290, -3610), (7290, -6350), (9400, -6350), (9400, -3610)])
add_polygon(sketch15, [(9240, -6150), (7440, -6150), (7440, -3760), (9240, -3760)])
sketch15.addConstraint([
    Sketcher.Constraint("Vertical", 0),
    Sketcher.Constraint("Horizontal", 1),
    Sketcher.Constraint("Vertical", 2),
    Sketcher.Constraint("Horizontal", 3),
    Sketcher.Constraint("Horizontal", 4),
    Sketcher.Constraint("Vertical", 5),
    Sketcher.Constraint("Horizontal", 6),
    Sketcher.Constraint("Vertical", 7),
    Sketcher.Constraint("DistanceX", 1, 1, 1, 2, 2110.0),
    Sketcher.Constraint("DistanceX", 4, 2, 4, 1, 1800.0),
    Sketcher.Constraint("DistanceY", 0, 2, 0, 1, 2740.0),
    Sketcher.Constraint("DistanceY", 5, 1, 5, 2, 2390.0),
    Sketcher.Constraint("DistanceX", -1, 1, 0, 2, 7290.0),
    Sketcher.Constraint("DistanceY", 0, 2, -1, 1, 6350.0),
    Sketcher.Constraint("DistanceX", -1, 1, 4, 2, 7440.0),
    Sketcher.Constraint("DistanceY", 4, 2, -1, 1, 6150.0),
])
pad7 = body.newObject("PartDesign::Pad", "Pad006")
pad7.Profile = sketch15
pad7.Length = 210

sketch16 = body.newObject("Sketcher::SketchObject", "Sketch015")
sketch16.AttachmentSupport = (doc.getObject("XZ_Plane"), [""])
sketch16.MapMode = "FlatFace"
sketch16.AttachmentOffset = App.Placement(App.Vector(0, 0, 6350), App.Rotation())
add_polygon(sketch16, [(7440, 2780), (9240, 2400), (9400, 2400), (9400, 2780)])
sketch16.addConstraint([
    Sketcher.Constraint("Horizontal", 1),
    Sketcher.Constraint("Vertical", 2),
    Sketcher.Constraint("Horizontal", 3),
    Sketcher.Constraint("DistanceX", 1, 1, 1, 2, 160.0),
    Sketcher.Constraint("DistanceX", 3, 2, 3, 1, 1960.0),
    Sketcher.Constraint("DistanceY", 2, 1, 2, 2, 380.0),
    Sketcher.Constraint("DistanceX", -1, 1, 0, 2, 9240.0),
    Sketcher.Constraint("DistanceY", -1, 1, 0, 2, 2400.0),
])
pocket9 = body.newObject("PartDesign::Pocket", "Pocket008")
pocket9.Profile = sketch16
pocket9.Type = "ThroughAll"

sketch17 = body.newObject("Sketcher::SketchObject", "Sketch016")
sketch17.AttachmentSupport = (doc.getObject("XY_Plane"), [""])
sketch17.MapMode = "FlatFace"
sketch17.AttachmentOffset = App.Placement(App.Vector(0, 0, 2780), App.Rotation())
add_polygon(sketch17, [(6751.479149, -3293.946505), (6751.479149, -6450.852394), (10726.379395, -6450.852394), (10726.379395, -3293.946505)])
add_polygon(sketch17, [(9400, -6350), (7290, -6350), (7290, -3760), (9400, -3760)])
sketch17.addConstraint([
    Sketcher.Constraint("Vertical", 0),
    Sketcher.Constraint("Horizontal", 1),
    Sketcher.Constraint("Vertical", 2),
    Sketcher.Constraint("Horizontal", 3),
    Sketcher.Constraint("Horizontal", 4),
    Sketcher.Constraint("Vertical", 5),
    Sketcher.Constraint("Horizontal", 6),
    Sketcher.Constraint("Vertical", 7),
    Sketcher.Constraint("DistanceX", 4, 2, 4, 1, 2110.0),
    Sketcher.Constraint("DistanceY", 5, 1, 5, 2, 2590.0),
    Sketcher.Constraint("DistanceX", -1, 1, 4, 2, 7290.0),
    Sketcher.Constraint("DistanceY", 4, 2, -1, 1, 6350.0),
    Sketcher.Constraint("DistanceY", 0, 2, 0, 1, 3156.905889),
    Sketcher.Constraint("DistanceX", 1, 1, 1, 2, 3974.900246),
    Sketcher.Constraint("DistanceX", -1, 1, 0, 2, 6751.479149),
    Sketcher.Constraint("DistanceY", 0, 2, -1, 1, 6450.852394),
])
pocket10 = body.newObject("PartDesign::Pocket", "Pocket009")
pocket10.Profile = sketch17
pocket10.Type = "ThroughAll"

sketch18 = body.newObject("Sketcher::SketchObject", "Sketch017")
sketch18.AttachmentSupport = (doc.getObject("YZ_Plane"), [""])
sketch18.MapMode = "FlatFace"
sketch18.AttachmentOffset = App.Placement(App.Vector(0, 0, 7440), App.Rotation())
sketch18.addGeometry(Part.Circle(App.Vector(-5510, 1750, 0), App.Vector(0, 0, 1), 6), False)
sketch18.addConstraint([
    Sketcher.Constraint("Diameter", 0, 12.0),
    Sketcher.Constraint("DistanceX", 0, 3, -1, 1, 5510.0),
    Sketcher.Constraint("DistanceY", -1, 1, 0, 3, 1750.0),
])
pocket11 = body.newObject("PartDesign::Pocket", "Pocket010")
pocket11.Profile = sketch18
pocket11.Length = 300

doc.recompute()
